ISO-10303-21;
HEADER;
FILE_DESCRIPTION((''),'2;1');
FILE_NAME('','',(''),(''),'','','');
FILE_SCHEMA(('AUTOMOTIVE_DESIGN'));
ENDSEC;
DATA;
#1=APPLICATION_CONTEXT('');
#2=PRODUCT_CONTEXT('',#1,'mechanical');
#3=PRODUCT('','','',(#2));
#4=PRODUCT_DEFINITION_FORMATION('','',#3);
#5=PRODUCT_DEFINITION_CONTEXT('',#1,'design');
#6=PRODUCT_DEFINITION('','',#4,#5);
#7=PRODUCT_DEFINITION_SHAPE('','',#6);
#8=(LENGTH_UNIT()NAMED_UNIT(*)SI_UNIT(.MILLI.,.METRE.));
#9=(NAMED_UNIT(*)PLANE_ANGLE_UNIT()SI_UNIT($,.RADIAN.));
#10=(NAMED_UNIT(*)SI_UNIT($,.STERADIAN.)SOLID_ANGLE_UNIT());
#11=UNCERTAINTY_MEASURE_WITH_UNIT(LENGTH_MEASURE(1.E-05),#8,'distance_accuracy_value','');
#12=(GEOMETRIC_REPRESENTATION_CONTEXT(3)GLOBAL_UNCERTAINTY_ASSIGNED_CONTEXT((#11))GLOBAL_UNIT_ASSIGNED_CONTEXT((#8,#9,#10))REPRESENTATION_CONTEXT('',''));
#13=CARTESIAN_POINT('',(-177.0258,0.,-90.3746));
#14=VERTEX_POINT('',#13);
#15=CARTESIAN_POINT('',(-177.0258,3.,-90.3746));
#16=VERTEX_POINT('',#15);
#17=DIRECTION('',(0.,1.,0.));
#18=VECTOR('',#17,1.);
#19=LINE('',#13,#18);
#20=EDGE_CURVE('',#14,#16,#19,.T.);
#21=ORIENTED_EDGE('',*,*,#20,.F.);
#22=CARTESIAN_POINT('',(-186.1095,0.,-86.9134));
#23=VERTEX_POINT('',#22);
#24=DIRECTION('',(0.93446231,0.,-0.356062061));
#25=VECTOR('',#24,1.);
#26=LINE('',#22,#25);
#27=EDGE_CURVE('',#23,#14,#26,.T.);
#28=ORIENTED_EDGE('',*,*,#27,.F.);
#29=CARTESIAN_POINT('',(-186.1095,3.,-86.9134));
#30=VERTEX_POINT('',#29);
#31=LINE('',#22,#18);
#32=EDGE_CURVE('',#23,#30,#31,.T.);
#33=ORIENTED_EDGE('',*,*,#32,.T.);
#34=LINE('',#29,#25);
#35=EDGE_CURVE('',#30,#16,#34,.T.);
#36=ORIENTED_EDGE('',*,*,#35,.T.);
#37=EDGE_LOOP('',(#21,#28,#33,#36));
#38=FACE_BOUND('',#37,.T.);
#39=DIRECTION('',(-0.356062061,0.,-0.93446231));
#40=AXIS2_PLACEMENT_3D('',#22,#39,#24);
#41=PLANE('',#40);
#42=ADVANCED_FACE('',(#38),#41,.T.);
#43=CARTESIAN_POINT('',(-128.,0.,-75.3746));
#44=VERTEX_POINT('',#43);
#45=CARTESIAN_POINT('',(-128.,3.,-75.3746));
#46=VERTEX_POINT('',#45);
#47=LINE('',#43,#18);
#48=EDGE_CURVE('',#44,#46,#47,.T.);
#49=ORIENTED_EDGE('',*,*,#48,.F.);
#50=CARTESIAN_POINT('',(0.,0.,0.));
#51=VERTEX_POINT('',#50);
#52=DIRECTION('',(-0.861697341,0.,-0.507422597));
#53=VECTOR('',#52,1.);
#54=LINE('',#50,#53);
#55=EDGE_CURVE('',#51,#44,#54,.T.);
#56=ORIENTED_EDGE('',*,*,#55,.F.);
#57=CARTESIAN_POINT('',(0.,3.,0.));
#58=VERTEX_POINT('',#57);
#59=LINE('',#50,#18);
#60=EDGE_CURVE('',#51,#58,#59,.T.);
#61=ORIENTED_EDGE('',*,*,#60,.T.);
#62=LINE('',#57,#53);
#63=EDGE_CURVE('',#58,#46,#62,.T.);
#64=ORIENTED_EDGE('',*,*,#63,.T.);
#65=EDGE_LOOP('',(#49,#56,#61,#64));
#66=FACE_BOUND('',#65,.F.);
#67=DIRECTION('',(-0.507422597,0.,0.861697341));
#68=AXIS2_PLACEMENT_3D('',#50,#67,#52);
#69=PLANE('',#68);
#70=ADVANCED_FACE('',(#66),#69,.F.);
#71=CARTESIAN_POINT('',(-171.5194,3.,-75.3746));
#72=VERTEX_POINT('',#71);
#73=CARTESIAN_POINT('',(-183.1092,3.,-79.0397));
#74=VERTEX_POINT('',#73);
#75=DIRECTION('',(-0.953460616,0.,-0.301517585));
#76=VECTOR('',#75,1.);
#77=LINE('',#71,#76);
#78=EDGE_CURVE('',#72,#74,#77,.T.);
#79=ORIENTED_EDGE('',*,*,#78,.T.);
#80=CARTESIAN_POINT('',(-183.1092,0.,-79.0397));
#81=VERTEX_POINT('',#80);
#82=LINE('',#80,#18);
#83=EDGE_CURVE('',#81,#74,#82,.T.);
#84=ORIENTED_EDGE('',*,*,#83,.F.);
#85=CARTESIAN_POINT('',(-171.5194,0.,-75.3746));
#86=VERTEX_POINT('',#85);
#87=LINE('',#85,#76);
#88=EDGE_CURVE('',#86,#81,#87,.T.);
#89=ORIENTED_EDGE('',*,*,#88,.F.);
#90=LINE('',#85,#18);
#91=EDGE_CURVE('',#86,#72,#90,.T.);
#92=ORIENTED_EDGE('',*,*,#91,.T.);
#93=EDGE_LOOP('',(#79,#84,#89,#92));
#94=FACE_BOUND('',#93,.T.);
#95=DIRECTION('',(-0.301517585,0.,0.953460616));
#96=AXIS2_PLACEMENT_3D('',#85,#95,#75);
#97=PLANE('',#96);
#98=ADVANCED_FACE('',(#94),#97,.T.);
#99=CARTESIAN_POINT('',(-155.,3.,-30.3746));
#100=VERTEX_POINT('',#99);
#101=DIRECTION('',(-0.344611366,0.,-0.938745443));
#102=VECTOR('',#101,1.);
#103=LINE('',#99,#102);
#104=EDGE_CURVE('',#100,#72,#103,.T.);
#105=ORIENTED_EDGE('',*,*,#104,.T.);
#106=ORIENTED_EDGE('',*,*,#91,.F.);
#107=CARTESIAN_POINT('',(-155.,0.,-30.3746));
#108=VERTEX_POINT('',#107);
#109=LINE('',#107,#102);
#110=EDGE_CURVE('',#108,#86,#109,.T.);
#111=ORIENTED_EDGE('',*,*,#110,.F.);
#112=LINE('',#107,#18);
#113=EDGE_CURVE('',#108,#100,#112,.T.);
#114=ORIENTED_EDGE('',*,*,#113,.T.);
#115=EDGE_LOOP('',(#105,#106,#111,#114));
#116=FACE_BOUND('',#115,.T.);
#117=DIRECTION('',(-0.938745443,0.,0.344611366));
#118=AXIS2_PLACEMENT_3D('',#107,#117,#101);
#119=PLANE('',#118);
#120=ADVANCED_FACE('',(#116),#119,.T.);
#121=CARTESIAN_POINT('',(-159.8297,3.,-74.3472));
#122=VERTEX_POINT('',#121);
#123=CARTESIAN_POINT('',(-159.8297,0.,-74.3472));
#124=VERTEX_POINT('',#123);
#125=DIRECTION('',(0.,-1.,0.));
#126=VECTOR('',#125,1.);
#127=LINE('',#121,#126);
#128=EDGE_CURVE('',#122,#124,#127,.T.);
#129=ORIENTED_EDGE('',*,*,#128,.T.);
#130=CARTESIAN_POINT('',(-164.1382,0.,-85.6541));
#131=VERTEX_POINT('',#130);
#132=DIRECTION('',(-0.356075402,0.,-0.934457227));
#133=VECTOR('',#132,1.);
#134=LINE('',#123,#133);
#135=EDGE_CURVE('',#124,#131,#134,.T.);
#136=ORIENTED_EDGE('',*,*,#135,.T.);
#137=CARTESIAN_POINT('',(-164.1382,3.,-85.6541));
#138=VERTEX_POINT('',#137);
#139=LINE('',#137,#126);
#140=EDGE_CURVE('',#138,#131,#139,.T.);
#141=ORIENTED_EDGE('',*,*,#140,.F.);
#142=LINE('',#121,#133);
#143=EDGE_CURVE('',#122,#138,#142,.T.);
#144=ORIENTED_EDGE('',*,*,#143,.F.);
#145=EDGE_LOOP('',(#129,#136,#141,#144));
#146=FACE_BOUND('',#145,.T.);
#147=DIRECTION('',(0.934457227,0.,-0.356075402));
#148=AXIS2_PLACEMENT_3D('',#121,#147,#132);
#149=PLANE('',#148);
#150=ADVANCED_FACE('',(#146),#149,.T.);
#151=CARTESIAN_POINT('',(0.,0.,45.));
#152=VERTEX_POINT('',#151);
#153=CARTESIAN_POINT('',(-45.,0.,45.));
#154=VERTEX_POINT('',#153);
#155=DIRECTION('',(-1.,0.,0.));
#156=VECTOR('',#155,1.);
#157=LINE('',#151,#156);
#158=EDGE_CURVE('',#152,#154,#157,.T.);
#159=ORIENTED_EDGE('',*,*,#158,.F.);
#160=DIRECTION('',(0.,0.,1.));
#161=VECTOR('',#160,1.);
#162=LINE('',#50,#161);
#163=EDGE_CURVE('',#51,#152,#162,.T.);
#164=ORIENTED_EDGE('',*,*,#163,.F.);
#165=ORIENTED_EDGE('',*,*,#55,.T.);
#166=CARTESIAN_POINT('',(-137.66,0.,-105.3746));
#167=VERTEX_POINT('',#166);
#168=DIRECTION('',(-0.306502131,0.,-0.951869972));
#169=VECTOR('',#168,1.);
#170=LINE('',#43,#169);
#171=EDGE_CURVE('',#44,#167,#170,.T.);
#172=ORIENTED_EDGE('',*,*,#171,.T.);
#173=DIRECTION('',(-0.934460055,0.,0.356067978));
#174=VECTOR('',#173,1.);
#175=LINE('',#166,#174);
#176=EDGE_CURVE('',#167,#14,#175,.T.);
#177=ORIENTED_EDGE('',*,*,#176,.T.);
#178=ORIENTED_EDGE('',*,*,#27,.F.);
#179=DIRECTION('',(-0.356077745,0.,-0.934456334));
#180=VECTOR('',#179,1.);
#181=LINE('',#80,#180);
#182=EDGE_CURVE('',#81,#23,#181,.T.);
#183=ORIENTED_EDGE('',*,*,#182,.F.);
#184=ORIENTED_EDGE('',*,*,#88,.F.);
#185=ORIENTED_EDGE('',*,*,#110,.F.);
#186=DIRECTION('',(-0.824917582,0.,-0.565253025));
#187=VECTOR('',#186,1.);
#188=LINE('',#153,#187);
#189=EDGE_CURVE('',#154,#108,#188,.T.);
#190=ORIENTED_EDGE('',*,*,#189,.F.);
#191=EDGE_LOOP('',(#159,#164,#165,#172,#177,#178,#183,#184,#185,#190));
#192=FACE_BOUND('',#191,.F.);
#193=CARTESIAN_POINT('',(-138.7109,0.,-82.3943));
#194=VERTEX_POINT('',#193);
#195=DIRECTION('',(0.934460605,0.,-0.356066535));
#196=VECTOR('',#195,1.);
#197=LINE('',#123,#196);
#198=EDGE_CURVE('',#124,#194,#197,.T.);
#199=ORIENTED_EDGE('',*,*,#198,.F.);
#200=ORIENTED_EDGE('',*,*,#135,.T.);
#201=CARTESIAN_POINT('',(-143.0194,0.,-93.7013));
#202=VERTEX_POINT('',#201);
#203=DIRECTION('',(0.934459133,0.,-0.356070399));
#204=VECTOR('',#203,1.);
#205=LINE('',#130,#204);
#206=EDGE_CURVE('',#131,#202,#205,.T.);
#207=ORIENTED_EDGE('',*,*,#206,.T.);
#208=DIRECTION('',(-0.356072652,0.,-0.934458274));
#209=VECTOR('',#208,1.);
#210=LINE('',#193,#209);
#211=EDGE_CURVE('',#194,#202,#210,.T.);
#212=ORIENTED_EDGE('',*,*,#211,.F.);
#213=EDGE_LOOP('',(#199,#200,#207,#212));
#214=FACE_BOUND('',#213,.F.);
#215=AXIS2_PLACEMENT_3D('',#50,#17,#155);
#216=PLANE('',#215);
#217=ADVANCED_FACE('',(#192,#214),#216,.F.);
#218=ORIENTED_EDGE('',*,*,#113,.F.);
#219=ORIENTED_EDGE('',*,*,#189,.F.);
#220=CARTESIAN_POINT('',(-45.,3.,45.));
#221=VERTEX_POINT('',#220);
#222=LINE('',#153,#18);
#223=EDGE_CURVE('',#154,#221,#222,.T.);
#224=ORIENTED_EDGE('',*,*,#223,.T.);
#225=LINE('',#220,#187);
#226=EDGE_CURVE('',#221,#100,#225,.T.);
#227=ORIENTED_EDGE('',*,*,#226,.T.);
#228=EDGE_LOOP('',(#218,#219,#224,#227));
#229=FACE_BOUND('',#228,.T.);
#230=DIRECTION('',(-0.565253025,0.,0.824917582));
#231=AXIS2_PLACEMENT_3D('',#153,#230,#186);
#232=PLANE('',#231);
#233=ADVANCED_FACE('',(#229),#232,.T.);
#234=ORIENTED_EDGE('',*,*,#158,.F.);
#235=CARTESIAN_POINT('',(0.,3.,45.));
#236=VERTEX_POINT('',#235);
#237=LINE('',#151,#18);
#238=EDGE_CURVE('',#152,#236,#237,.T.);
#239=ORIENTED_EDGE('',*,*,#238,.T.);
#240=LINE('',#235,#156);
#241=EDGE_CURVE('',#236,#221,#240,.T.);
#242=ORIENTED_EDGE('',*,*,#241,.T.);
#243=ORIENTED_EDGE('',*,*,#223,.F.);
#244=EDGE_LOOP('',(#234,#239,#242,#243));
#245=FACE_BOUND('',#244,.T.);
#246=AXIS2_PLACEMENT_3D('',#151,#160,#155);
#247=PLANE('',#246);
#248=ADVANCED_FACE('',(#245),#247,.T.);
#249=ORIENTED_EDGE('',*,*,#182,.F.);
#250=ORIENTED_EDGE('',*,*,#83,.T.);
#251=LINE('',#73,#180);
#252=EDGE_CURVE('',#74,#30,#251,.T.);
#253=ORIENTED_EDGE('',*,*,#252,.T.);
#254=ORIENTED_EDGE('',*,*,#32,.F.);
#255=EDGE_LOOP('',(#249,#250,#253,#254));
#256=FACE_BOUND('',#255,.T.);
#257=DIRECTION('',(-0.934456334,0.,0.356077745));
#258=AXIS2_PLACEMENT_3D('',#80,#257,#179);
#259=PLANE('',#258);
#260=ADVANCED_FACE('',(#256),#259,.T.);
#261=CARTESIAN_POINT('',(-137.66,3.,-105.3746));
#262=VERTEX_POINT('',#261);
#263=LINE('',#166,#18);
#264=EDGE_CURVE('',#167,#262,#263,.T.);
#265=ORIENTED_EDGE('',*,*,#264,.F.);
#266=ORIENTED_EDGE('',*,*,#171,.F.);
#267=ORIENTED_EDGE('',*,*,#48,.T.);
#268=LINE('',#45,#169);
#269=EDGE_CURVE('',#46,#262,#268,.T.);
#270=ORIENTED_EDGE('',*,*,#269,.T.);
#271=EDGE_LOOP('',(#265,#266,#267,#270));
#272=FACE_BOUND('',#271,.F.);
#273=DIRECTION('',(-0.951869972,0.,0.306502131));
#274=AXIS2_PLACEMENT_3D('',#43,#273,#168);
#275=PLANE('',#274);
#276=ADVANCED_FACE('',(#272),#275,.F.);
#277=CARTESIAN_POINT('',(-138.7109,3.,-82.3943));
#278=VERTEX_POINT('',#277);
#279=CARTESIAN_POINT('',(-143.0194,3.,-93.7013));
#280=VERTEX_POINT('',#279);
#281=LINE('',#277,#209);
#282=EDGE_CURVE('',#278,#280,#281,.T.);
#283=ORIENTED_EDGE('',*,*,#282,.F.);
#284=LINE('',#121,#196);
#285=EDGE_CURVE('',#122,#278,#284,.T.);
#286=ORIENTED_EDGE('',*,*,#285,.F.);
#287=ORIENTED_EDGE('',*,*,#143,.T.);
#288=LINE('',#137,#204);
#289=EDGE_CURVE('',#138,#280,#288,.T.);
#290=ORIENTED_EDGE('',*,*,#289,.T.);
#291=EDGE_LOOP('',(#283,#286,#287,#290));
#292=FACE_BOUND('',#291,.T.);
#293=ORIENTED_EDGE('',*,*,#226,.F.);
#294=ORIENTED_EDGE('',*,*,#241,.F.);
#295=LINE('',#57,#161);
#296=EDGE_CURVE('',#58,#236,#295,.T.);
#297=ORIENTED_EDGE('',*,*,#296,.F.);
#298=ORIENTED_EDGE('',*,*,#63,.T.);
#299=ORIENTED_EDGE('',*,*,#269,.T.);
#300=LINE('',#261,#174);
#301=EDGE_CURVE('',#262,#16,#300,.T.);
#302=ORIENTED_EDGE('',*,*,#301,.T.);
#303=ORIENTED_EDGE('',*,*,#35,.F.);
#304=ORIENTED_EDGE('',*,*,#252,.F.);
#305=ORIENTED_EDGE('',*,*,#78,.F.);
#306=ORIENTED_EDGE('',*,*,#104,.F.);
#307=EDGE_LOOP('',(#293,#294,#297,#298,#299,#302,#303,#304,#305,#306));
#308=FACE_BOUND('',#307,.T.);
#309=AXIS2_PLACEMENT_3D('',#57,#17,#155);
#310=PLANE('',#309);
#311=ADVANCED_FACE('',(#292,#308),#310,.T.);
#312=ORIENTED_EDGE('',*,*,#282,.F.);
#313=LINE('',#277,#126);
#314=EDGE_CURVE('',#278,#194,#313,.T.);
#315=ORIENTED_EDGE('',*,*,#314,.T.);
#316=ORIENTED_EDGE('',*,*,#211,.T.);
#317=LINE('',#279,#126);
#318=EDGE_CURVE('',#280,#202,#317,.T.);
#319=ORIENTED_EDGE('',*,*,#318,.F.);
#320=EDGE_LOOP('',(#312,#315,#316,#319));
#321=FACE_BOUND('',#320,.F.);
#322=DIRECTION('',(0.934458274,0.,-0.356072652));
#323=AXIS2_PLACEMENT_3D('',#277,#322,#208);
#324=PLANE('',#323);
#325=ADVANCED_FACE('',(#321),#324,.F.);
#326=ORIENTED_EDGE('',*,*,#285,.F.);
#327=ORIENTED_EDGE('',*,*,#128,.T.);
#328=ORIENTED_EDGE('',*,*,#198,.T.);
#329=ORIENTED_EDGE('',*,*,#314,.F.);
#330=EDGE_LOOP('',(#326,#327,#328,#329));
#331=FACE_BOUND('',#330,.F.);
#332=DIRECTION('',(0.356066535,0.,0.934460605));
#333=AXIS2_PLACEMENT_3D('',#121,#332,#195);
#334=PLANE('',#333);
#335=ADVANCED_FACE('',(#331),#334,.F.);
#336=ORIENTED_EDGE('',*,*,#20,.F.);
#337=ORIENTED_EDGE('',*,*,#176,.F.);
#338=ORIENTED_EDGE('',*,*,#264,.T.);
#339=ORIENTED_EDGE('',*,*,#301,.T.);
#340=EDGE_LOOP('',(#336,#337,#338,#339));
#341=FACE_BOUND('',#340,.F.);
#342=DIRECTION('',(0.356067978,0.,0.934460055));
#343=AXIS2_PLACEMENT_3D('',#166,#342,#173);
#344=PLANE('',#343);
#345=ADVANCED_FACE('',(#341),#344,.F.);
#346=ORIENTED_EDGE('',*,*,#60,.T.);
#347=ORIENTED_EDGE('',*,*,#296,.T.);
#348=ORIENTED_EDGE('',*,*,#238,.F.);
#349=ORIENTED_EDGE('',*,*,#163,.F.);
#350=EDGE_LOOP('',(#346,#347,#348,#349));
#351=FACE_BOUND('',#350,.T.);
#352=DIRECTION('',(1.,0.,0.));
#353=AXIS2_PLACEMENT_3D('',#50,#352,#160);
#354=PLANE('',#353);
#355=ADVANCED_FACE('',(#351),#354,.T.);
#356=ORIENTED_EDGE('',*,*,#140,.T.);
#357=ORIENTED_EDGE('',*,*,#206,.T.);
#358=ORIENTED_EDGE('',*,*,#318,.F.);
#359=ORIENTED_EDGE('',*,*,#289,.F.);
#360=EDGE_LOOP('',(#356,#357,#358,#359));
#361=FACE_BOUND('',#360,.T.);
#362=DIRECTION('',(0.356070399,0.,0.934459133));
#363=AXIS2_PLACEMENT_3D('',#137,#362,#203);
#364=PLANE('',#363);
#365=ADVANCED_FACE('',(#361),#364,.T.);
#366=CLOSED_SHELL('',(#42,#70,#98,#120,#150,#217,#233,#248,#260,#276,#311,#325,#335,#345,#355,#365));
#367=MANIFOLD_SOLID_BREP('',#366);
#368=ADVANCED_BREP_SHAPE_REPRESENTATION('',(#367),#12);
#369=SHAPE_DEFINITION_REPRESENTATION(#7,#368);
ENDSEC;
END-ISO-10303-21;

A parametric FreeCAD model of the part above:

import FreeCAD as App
import Part
import Sketcher
from FreeCAD import Vector
Q = App.Units.Quantity

doc = App.newDocument("Part")
body = doc.addObject("PartDesign::Body", "Body")

# Sketch on XZ plane
sketch1 = body.newObject("Sketcher::SketchObject", "Sketch")
sketch1.AttachmentSupport = (doc.getObject("XZ_Plane"), [""])
sketch1.MapMode = "FlatFace"
sketch1.addGeometry([
    Part.LineSegment(Vector(0, 45, 0), Vector(0, 0, 0)),  # 0
    Part.LineSegment(Vector(0, 0, 0), Vector(-128, -75.3746, 0)),  # 1
    Part.LineSegment(Vector(-128, -75.3746, 0), Vector(-137.66, -105.3746, 0)),  # 2
    Part.LineSegment(Vector(-137.66, -105.3746, 0), Vector(-177.0258, -90.3746, 0)),  # 3
    Part.LineSegment(Vector(-177.0258, -90.3746, 0), Vector(-186.1095, -86.9134, 0)),  # 4
    Part.LineSegment(Vector(-186.1095, -86.9134, 0), Vector(-183.1092, -79.0397, 0)),  # 5
    Part.LineSegment(Vector(-183.1092, -79.0397, 0), Vector(-171.5194, -75.3746, 0)),  # 6
    Part.LineSegment(Vector(-171.5194, -75.3746, 0), Vector(-155, -30.3746, 0)),  # 7
    Part.LineSegment(Vector(-155, -30.3746, 0), Vector(-45, 45, 0)),  # 8
    Part.LineSegment(Vector(-45, 45, 0), Vector(0, 45, 0)),  # 9
], False)
sketch1.addConstraint([
    Sketcher.Constraint("Coincident", 0, 2, 1, 1),
    Sketcher.Constraint("Coincident", 1, 2, 2, 1),
    Sketcher.Constraint("Coincident", 2, 2, 3, 1),
    Sketcher.Constraint("Coincident", 3, 2, 4, 1),
    Sketcher.Constraint("Coincident", 4, 2, 5, 1),
    Sketcher.Constraint("Coincident", 5, 2, 6, 1),
    Sketcher.Constraint("Coincident", 6, 2, 7, 1),
    Sketcher.Constraint("Coincident", 7, 2, 8, 1),
    Sketcher.Constraint("Coincident", 8, 2, 9, 1),
    Sketcher.Constraint("Coincident", 9, 2, 0, 1),
    Sketcher.Constraint("Vertical", 0),
    Sketcher.Constraint("Horizontal", 9),
    Sketcher.Constraint("Coincident", 0, 2, -1, 1),
    Sketcher.Constraint("Parallel", 3, 4),
    Sketcher.Constraint("Perpendicular", 4, 5),
    Sketcher.Constraint("Horizontal", 1, 2, 6, 2),
    Sketcher.Constraint("Equal", 9, 0),
    Sketcher.Constraint("DistanceX", 9, 1, 9, 2, 45.0),
    Sketcher.Constraint("DistanceX", 1, 2, -1, 1, 128.0),
    Sketcher.Constraint("DistanceY", 2, 2, 1, 2, 30.0),
    Sketcher.Constraint("DistanceY", 6, 2, 7, 2, 45.0),
    Sketcher.Constraint("DistanceX", 7, 2, 8, 2, 110.0),
    Sketcher.Constraint("DistanceY", 2, 2, 3, 2, 15.0),
    Sketcher.Constraint("Angle", 3, Q("159.141 deg")),
    Sketcher.Constraint("Angle", 8, Q("34.4199 deg")),
    Sketcher.Constraint("DistanceX", 2, 2, -1, 1, 137.66),
    Sketcher.Constraint("DistanceX", 4, 2, 6, 2, 14.59),
    Sketcher.Constraint("Distance", 5, 8.426),
    Sketcher.Constraint("DistanceY", 3, 2, 5, 2, 11.335),
])
pad1 = body.newObject("PartDesign::Pad", "Pad")
pad1.Profile = sketch1
pad1.Length = 3
pad1.Reversed = True

# Sketch on XZ plane
sketch2 = body.newObject("Sketcher::SketchObject", "Sketch001")
sketch2.AttachmentSupport = (doc.getObject("XZ_Plane"), [""])
sketch2.MapMode = "FlatFace"
sketch2.AttachmentOffset = App.Placement(Vector(0, 0, -3), App.Rotation())
sketch2.addGeometry([
    Part.LineSegment(Vector(-143.0194, -93.7013, 0), Vector(-164.1382, -85.6541, 0)),
    Part.LineSegment(Vector(-164.1382, -85.6541, 0), Vector(-159.8297, -74.3472, 0)),
    Part.LineSegment(Vector(-159.8297, -74.3472, 0), Vector(-138.7109, -82.3943, 0)),
    Part.LineSegment(Vector(-138.7109, -82.3943, 0), Vector(-143.0194, -93.7013, 0)),
], False)
sketch2.addConstraint([
    Sketcher.Constraint("Coincident", 0, 2, 1, 1),
    Sketcher.Constraint("Coincident", 1, 2, 2, 1),
    Sketcher.Constraint("Coincident", 2, 2, 3, 1),
    Sketcher.Constraint("Coincident", 3, 2, 0, 1),
    Sketcher.Constraint("Perpendicular", 0, 1),
    Sketcher.Constraint("Perpendicular", 1, 2),
    Sketcher.Constraint("Perpendicular", 2, 3),
    Sketcher.Constraint("Distance", 0, 22.6),
    Sketcher.Constraint("Distance", 1, 12.1),
    Sketcher.Constraint("Angle", 0, Q("159.141 deg")),
    Sketcher.Constraint("DistanceY", 0, 2, -1, 1, 85.654),
    Sketcher.Constraint("DistanceX", 2, 2, -1, 1, 138.711),
])
pocket1 = body.newObject("PartDesign::Pocket", "Pocket")
pocket1.Profile = sketch2
pocket1.Length = 3
pocket1.Reversed = True

doc.recompute()
